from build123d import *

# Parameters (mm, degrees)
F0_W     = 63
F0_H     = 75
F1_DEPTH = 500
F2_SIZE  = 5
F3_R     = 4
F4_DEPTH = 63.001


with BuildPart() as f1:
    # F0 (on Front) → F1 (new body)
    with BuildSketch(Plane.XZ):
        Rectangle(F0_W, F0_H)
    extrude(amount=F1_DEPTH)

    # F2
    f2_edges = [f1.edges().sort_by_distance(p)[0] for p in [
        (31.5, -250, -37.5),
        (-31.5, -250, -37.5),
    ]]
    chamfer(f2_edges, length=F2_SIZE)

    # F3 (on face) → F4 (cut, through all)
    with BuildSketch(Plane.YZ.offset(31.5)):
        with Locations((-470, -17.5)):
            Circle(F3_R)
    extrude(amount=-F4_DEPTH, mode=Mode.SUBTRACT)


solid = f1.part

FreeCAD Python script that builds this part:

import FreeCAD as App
import Part
import Sketcher
Q = App.Units.Quantity


def edges_at(feature, points):
    """Names of the edges that pass closest to the given points."""
    edges = feature.Shape.Edges
    near = lambda p: min(range(len(edges)), key=lambda i: edges[i].distToShape(Part.Vertex(*p))[0])
    return sorted({f"Edge{near(p) + 1}" for p in points})


def add_polygon(sketch, points):
    """Adds a closed chain of lines whose ends are joined by coincident constraints."""
    first, n = sketch.GeometryCount, len(points)
    for a, b in zip(points, points[1:] + points[:1]):
        sketch.addGeometry(Part.LineSegment(App.Vector(*a, 0), App.Vector(*b, 0)), False)
    for i in range(n):
        sketch.addConstraint(Sketcher.Constraint("Coincident", first + i, 2, first + (i + 1) % n, 1))

doc = App.newDocument("Part")
body = doc.addObject("PartDesign::Body", "Body")

# Sketch on XZ plane
sketch1 = body.newObject("Sketcher::SketchObject", "Sketch")
sketch1.AttachmentSupport = (doc.getObject("XZ_Plane"), [""])
sketch1.MapMode = "FlatFace"
add_polygon(sketch1, [(-32, 38), (-32, -38), (32, -38), (32, 38)])  # lines 0-3
sketch1.addConstraint([
    Sketcher.Constraint("Vertical", 0),
    Sketcher.Constraint("Horizontal", 1),
    Sketcher.Constraint("Vertical", 2),
    Sketcher.Constraint("Horizontal", 3),
    Sketcher.Constraint("Symmetric", 0, 2, 2, 2, -1, 1),
    Sketcher.Constraint("DistanceX", 1, 1, 1, 2, Q("63 mm")),
    Sketcher.Constraint("DistanceY", 0, 2, 0, 1, Q("75 mm")),
])
pad1 = body.newObject("PartDesign::Pad", "Pad")
pad1.Profile = sketch1
pad1.Length = 500
doc.recompute()

chamfer = body.newObject("PartDesign::Chamfer", "Chamfer")
chamfer.Base = (pad1, edges_at(pad1, [(31.5, -250, -37.5), (-31.5, -250, -37.5)]))
chamfer.Size = 5

# Sketch on YZ plane
sketch2 = body.newObject("Sketcher::SketchObject", "Sketch001")
sketch2.AttachmentSupport = (doc.getObject("YZ_Plane"), [""])
sketch2.MapMode = "FlatFace"
sketch2.AttachmentOffset = App.Placement(App.Vector(0, 0, 31.5), App.Rotation())
sketch2.addGeometry(Part.Circle(App.Vector(-470, -17.5, 0), App.Vector(0, 0, 1), 4), False)
sketch2.addConstraint([
    Sketcher.Constraint("Diameter", 0, Q("8 mm")),
    Sketcher.Constraint("DistanceX", 0, 3, -1, 1, Q("470 mm")),
    Sketcher.Constraint("DistanceY", 0, 3, -1, 1, Q("17.5 mm")),
])
pocket1 = body.newObject("PartDesign::Pocket", "Pocket")
pocket1.Profile = sketch2
pocket1.Type = "ThroughAll"

doc.recompute()
